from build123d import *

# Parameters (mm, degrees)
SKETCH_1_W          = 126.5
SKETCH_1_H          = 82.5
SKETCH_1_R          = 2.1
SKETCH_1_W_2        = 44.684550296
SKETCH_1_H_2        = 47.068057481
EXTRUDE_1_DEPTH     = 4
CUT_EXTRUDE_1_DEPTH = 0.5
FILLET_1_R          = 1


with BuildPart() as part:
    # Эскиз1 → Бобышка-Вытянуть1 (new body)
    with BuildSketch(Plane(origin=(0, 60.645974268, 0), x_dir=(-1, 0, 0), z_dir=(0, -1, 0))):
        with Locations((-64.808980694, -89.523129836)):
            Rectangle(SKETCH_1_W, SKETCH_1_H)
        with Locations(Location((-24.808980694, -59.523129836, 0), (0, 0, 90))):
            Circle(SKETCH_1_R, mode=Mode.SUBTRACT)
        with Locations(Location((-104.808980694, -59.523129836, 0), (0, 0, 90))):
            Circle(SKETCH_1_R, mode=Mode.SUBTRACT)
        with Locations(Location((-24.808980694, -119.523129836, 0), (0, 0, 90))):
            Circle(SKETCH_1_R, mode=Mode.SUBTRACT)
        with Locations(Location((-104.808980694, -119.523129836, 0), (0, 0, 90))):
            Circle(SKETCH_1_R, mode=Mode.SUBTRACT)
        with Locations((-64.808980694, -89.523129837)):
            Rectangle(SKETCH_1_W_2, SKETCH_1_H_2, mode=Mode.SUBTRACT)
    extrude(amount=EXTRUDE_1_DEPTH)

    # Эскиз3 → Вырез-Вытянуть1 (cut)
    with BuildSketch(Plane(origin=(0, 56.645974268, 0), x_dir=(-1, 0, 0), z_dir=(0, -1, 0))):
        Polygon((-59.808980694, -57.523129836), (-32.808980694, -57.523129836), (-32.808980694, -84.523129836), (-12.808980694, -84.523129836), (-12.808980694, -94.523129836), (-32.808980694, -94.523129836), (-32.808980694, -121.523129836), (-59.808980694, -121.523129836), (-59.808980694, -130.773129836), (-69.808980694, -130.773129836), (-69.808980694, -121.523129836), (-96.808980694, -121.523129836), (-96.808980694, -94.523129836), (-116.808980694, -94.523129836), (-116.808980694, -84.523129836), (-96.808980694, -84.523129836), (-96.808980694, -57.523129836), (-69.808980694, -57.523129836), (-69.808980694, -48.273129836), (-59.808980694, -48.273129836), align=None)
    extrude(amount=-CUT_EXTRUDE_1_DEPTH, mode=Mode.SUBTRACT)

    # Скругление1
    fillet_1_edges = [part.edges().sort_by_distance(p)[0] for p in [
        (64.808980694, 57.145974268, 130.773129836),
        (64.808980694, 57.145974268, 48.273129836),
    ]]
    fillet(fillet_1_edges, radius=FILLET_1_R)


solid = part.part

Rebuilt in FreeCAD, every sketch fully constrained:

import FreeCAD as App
import Part
import Sketcher
from FreeCAD import Vector


def edges_at(feature, points):
    """Names of the edges that pass closest to the given points."""
    edges = feature.Shape.Edges
    near = lambda p: min(range(len(edges)), key=lambda i: edges[i].distToShape(Part.Vertex(*p))[0])
    return sorted({f"Edge{near(p) + 1}" for p in points})

doc = App.newDocument("Part")
body = doc.addObject("PartDesign::Body", "Body")

sketch1 = doc.addObject("Sketcher::SketchObject", "Sketch")
body.addObject(sketch1)
sketch1.AttachmentSupport = (doc.XZ_Plane, [""])
sketch1.MapMode = "FlatFace"
sketch1.AttachmentOffset = App.Placement(Vector(0, 0, -60.645974), App.Rotation())
sketch1.addGeometry(Part.LineSegment(Vector(128.058981, 48.27313, 0), Vector(128.058981, 130.77313, 0)), False)
sketch1.addGeometry(Part.LineSegment(Vector(128.058981, 130.77313, 0), Vector(1.558981, 130.77313, 0)), False)
sketch1.addGeometry(Part.LineSegment(Vector(1.558981, 130.77313, 0), Vector(1.558981, 48.27313, 0)), False)
sketch1.addGeometry(Part.LineSegment(Vector(1.558981, 48.27313, 0), Vector(128.058981, 48.27313, 0)), False)
sketch1.addGeometry(Part.Circle(Vector(104.808981, 119.52313, 0), Vector(0, 0, 1), 2.1), False)
sketch1.addGeometry(Part.Circle(Vector(24.808981, 119.52313, 0), Vector(0, 0, 1), 2.1), False)
sketch1.addGeometry(Part.LineSegment(Vector(42.466706, 113.057159, 0), Vector(87.151256, 113.057159, 0)), False)
sketch1.addGeometry(Part.LineSegment(Vector(87.151256, 113.057159, 0), Vector(87.151256, 65.989101, 0)), False)
sketch1.addGeometry(Part.LineSegment(Vector(87.151256, 65.989101, 0), Vector(42.466706, 65.989101, 0)), False)
sketch1.addGeometry(Part.LineSegment(Vector(42.466706, 65.989101, 0), Vector(42.466706, 113.057159, 0)), False)
sketch1.addGeometry(Part.Circle(Vector(104.808981, 59.52313, 0), Vector(0, 0, 1), 2.1), False)
sketch1.addGeometry(Part.Circle(Vector(24.808981, 59.52313, 0), Vector(0, 0, 1), 2.1), False)
sketch1.addConstraint(Sketcher.Constraint("Coincident", 0, 2, 1, 1))
sketch1.addConstraint(Sketcher.Constraint("Coincident", 1, 2, 2, 1))
sketch1.addConstraint(Sketcher.Constraint("Coincident", 2, 2, 3, 1))
sketch1.addConstraint(Sketcher.Constraint("Coincident", 3, 2, 0, 1))
sketch1.addConstraint(Sketcher.Constraint("Coincident", 6, 2, 7, 1))
sketch1.addConstraint(Sketcher.Constraint("Coincident", 7, 2, 8, 1))
sketch1.addConstraint(Sketcher.Constraint("Coincident", 8, 2, 9, 1))
sketch1.addConstraint(Sketcher.Constraint("Coincident", 9, 2, 6, 1))
sketch1.addConstraint(Sketcher.Constraint("Vertical", 0))
sketch1.addConstraint(Sketcher.Constraint("Horizontal", 1))
sketch1.addConstraint(Sketcher.Constraint("Vertical", 2))
sketch1.addConstraint(Sketcher.Constraint("Horizontal", 3))
sketch1.addConstraint(Sketcher.Constraint("Horizontal", 6))
sketch1.addConstraint(Sketcher.Constraint("Vertical", 7))
sketch1.addConstraint(Sketcher.Constraint("Horizontal", 8))
sketch1.addConstraint(Sketcher.Constraint("Vertical", 9))
sketch1.addConstraint(Sketcher.Constraint("Equal", 4, 5))
sketch1.addConstraint(Sketcher.Constraint("Equal", 5, 10))
sketch1.addConstraint(Sketcher.Constraint("Equal", 10, 11))
sketch1.addConstraint(Sketcher.Constraint("Horizontal", 4, 3, 5, 3))
sketch1.addConstraint(Sketcher.Constraint("Horizontal", 10, 3, 11, 3))
sketch1.addConstraint(Sketcher.Constraint("Vertical", 4, 3, 10, 3))
sketch1.addConstraint(Sketcher.Constraint("Vertical", 5, 3, 11, 3))
sketch1.addConstraint(Sketcher.Constraint("Diameter", 4, 4.2))
sketch1.addConstraint(Sketcher.Constraint("DistanceX", 1, 2, 1, 1, 126.5))
sketch1.addConstraint(Sketcher.Constraint("DistanceY", 0, 1, 0, 2, 82.5))
sketch1.addConstraint(Sketcher.Constraint("DistanceX", 5, 3, 4, 3, 80.0))
sketch1.addConstraint(Sketcher.Constraint("DistanceY", 10, 3, 4, 3, 60.0))
sketch1.addConstraint(Sketcher.Constraint("DistanceX", 4, 3, 0, 2, 23.25))
sketch1.addConstraint(Sketcher.Constraint("DistanceY", 4, 3, 0, 2, 11.25))
sketch1.addConstraint(Sketcher.Constraint("DistanceX", 6, 1, 6, 2, 44.68455))
sketch1.addConstraint(Sketcher.Constraint("DistanceY", -1, 1, 7, 2, 65.989101))
sketch1.addConstraint(Sketcher.Constraint("DistanceY", 7, 2, 7, 1, 47.068057))
sketch1.addConstraint(Sketcher.Constraint("DistanceX", -1, 1, 4, 3, 104.808981))
sketch1.addConstraint(Sketcher.Constraint("DistanceY", -1, 1, 4, 3, 119.52313))
sketch1.addConstraint(Sketcher.Constraint("DistanceX", -1, 1, 6, 2, 87.151256))
pad1 = doc.addObject("PartDesign::Pad", "Pad")
body.addObject(pad1)
pad1.Profile = sketch1
pad1.Length = 4

sketch2 = doc.addObject("Sketcher::SketchObject", "Sketch001")
body.addObject(sketch2)
sketch2.AttachmentSupport = (doc.XZ_Plane, [""])
sketch2.MapMode = "FlatFace"
sketch2.AttachmentOffset = App.Placement(Vector(0, 0, -56.645974), App.Rotation())
sketch2.addGeometry(Part.LineSegment(Vector(32.808981, 57.52313, 0), Vector(59.808981, 57.52313, 0)), False)
sketch2.addGeometry(Part.LineSegment(Vector(59.808981, 57.52313, 0), Vector(59.808981, 48.27313, 0)), False)
sketch2.addGeometry(Part.LineSegment(Vector(59.808981, 48.27313, 0), Vector(69.808981, 48.27313, 0)), False)
sketch2.addGeometry(Part.LineSegment(Vector(69.808981, 48.27313, 0), Vector(69.808981, 57.52313, 0)), False)
sketch2.addGeometry(Part.LineSegment(Vector(69.808981, 57.52313, 0), Vector(96.808981, 57.52313, 0)), False)
sketch2.addGeometry(Part.LineSegment(Vector(96.808981, 57.52313, 0), Vector(96.808981, 84.52313, 0)), False)
sketch2.addGeometry(Part.LineSegment(Vector(96.808981, 84.52313, 0), Vector(116.808981, 84.52313, 0)), False)
sketch2.addGeometry(Part.LineSegment(Vector(116.808981, 84.52313, 0), Vector(116.808981, 94.52313, 0)), False)
sketch2.addGeometry(Part.LineSegment(Vector(116.808981, 94.52313, 0), Vector(96.808981, 94.52313, 0)), False)
sketch2.addGeometry(Part.LineSegment(Vector(96.808981, 94.52313, 0), Vector(96.808981, 121.52313, 0)), False)
sketch2.addGeometry(Part.LineSegment(Vector(96.808981, 121.52313, 0), Vector(69.808981, 121.52313, 0)), False)
sketch2.addGeometry(Part.LineSegment(Vector(69.808981, 121.52313, 0), Vector(69.808981, 130.77313, 0)), False)
sketch2.addGeometry(Part.LineSegment(Vector(69.808981, 130.77313, 0), Vector(59.808981, 130.77313, 0)), False)
sketch2.addGeometry(Part.LineSegment(Vector(59.808981, 130.77313, 0), Vector(59.808981, 121.52313, 0)), False)
sketch2.addGeometry(Part.LineSegment(Vector(59.808981, 121.52313, 0), Vector(32.808981, 121.52313, 0)), False)
sketch2.addGeometry(Part.LineSegment(Vector(32.808981, 121.52313, 0), Vector(32.808981, 94.52313, 0)), False)
sketch2.addGeometry(Part.LineSegment(Vector(32.808981, 94.52313, 0), Vector(12.808981, 94.52313, 0)), False)
sketch2.addGeometry(Part.LineSegment(Vector(12.808981, 94.52313, 0), Vector(12.808981, 84.52313, 0)), False)
sketch2.addGeometry(Part.LineSegment(Vector(12.808981, 84.52313, 0), Vector(32.808981, 84.52313, 0)), False)
sketch2.addGeometry(Part.LineSegment(Vector(32.808981, 84.52313, 0), Vector(32.808981, 57.52313, 0)), False)
sketch2.addConstraint(Sketcher.Constraint("Coincident", 0, 2, 1, 1))
sketch2.addConstraint(Sketcher.Constraint("Coincident", 1, 2, 2, 1))
sketch2.addConstraint(Sketcher.Constraint("Coincident", 2, 2, 3, 1))
sketch2.addConstraint(Sketcher.Constraint("Coincident", 3, 2, 4, 1))
sketch2.addConstraint(Sketcher.Constraint("Coincident", 4, 2, 5, 1))
sketch2.addConstraint(Sketcher.Constraint("Coincident", 5, 2, 6, 1))
sketch2.addConstraint(Sketcher.Constraint("Coincident", 6, 2, 7, 1))
sketch2.addConstraint(Sketcher.Constraint("Coincident", 7, 2, 8, 1))
sketch2.addConstraint(Sketcher.Constraint("Coincident", 8, 2, 9, 1))
sketch2.addConstraint(Sketcher.Constraint("Coincident", 9, 2, 10, 1))
sketch2.addConstraint(Sketcher.Constraint("Coincident", 10, 2, 11, 1))
sketch2.addConstraint(Sketcher.Constraint("Coincident", 11, 2, 12, 1))
sketch2.addConstraint(Sketcher.Constraint("Coincident", 12, 2, 13, 1))
sketch2.addConstraint(Sketcher.Constraint("Coincident", 13, 2, 14, 1))
sketch2.addConstraint(Sketcher.Constraint("Coincident", 14, 2, 15, 1))
sketch2.addConstraint(Sketcher.Constraint("Coincident", 15, 2, 16, 1))
sketch2.addConstraint(Sketcher.Constraint("Coincident", 16, 2, 17, 1))
sketch2.addConstraint(Sketcher.Constraint("Coincident", 17, 2, 18, 1))
sketch2.addConstraint(Sketcher.Constraint("Coincident", 18, 2, 19, 1))
sketch2.addConstraint(Sketcher.Constraint("Coincident", 19, 2, 0, 1))
sketch2.addConstraint(Sketcher.Constraint("Horizontal", 0))
sketch2.addConstraint(Sketcher.Constraint("Vertical", 1))
sketch2.addConstraint(Sketcher.Constraint("Horizontal", 2))
sketch2.addConstraint(Sketcher.Constraint("Vertical", 3))
sketch2.addConstraint(Sketcher.Constraint("Horizontal", 4))
sketch2.addConstraint(Sketcher.Constraint("Vertical", 5))
sketch2.addConstraint(Sketcher.Constraint("Horizontal", 6))
sketch2.addConstraint(Sketcher.Constraint("Vertical", 7))
sketch2.addConstraint(Sketcher.Constraint("Horizontal", 8))
sketch2.addConstraint(Sketcher.Constraint("Vertical", 9))
sketch2.addConstraint(Sketcher.Constraint("Horizontal", 10))
sketch2.addConstraint(Sketcher.Constraint("Vertical", 11))
sketch2.addConstraint(Sketcher.Constraint("Horizontal", 12))
sketch2.addConstraint(Sketcher.Constraint("Vertical", 13))
sketch2.addConstraint(Sketcher.Constraint("Horizontal", 14))
sketch2.addConstraint(Sketcher.Constraint("Vertical", 15))
sketch2.addConstraint(Sketcher.Constraint("Horizontal", 16))
sketch2.addConstraint(Sketcher.Constraint("Vertical", 17))
sketch2.addConstraint(Sketcher.Constraint("Horizontal", 18))
sketch2.addConstraint(Sketcher.Constraint("Vertical", 19))
sketch2.addConstraint(Sketcher.Constraint("Horizontal", 0, 2, 3, 2))
sketch2.addConstraint(Sketcher.Constraint("Horizontal", 10, 2, 13, 2))
sketch2.addConstraint(Sketcher.Constraint("Horizontal", 8, 2, 15, 2))
sketch2.addConstraint(Sketcher.Constraint("Horizontal", 6, 2, 17, 2))
sketch2.addConstraint(Sketcher.Constraint("Vertical", 5, 2, 8, 2))
sketch2.addConstraint(Sketcher.Constraint("Vertical", 3, 2, 10, 2))
sketch2.addConstraint(Sketcher.Constraint("Vertical", 1, 2, 12, 2))
sketch2.addConstraint(Sketcher.Constraint("Vertical", 15, 2, 18, 2))
sketch2.addConstraint(Sketcher.Constraint("Equal", 0, 4))
sketch2.addConstraint(Sketcher.Constraint("Equal", 8, 16))
sketch2.addConstraint(Sketcher.Constraint("Equal", 14, 5))
sketch2.addConstraint(Sketcher.Constraint("Equal", 12, 7))
sketch2.addConstraint(Sketcher.Constraint("Equal", 5, 9))
sketch2.addConstraint(Sketcher.Constraint("Equal", 3, 11))
sketch2.addConstraint(Sketcher.Constraint("DistanceX", 0, 1, 0, 2, 27.0))
sketch2.addConstraint(Sketcher.Constraint("DistanceX", 2, 1, 2, 2, 10.0))
sketch2.addConstraint(Sketcher.Constraint("DistanceX", 6, 1, 6, 2, 20.0))
sketch2.addConstraint(Sketcher.Constraint("DistanceY", 1, 2, 1, 1, 9.25))
sketch2.addConstraint(Sketcher.Constraint("DistanceX", -1, 1, 0, 2, 59.808981))
sketch2.addConstraint(Sketcher.Constraint("DistanceY", -1, 1, 0, 2, 57.52313))
pocket1 = doc.addObject("PartDesign::Pocket", "Pocket")
body.addObject(pocket1)
pocket1.Profile = sketch2
pocket1.Length = 0.5
doc.recompute()

fillet = doc.addObject("PartDesign::Fillet", "Fillet")
body.addObject(fillet)
fillet.Base = (pocket1, edges_at(pocket1, [(64.809, 57.146, 130.773), (64.809, 57.146, 48.273)]))
fillet.Radius = 1

doc.recompute()
